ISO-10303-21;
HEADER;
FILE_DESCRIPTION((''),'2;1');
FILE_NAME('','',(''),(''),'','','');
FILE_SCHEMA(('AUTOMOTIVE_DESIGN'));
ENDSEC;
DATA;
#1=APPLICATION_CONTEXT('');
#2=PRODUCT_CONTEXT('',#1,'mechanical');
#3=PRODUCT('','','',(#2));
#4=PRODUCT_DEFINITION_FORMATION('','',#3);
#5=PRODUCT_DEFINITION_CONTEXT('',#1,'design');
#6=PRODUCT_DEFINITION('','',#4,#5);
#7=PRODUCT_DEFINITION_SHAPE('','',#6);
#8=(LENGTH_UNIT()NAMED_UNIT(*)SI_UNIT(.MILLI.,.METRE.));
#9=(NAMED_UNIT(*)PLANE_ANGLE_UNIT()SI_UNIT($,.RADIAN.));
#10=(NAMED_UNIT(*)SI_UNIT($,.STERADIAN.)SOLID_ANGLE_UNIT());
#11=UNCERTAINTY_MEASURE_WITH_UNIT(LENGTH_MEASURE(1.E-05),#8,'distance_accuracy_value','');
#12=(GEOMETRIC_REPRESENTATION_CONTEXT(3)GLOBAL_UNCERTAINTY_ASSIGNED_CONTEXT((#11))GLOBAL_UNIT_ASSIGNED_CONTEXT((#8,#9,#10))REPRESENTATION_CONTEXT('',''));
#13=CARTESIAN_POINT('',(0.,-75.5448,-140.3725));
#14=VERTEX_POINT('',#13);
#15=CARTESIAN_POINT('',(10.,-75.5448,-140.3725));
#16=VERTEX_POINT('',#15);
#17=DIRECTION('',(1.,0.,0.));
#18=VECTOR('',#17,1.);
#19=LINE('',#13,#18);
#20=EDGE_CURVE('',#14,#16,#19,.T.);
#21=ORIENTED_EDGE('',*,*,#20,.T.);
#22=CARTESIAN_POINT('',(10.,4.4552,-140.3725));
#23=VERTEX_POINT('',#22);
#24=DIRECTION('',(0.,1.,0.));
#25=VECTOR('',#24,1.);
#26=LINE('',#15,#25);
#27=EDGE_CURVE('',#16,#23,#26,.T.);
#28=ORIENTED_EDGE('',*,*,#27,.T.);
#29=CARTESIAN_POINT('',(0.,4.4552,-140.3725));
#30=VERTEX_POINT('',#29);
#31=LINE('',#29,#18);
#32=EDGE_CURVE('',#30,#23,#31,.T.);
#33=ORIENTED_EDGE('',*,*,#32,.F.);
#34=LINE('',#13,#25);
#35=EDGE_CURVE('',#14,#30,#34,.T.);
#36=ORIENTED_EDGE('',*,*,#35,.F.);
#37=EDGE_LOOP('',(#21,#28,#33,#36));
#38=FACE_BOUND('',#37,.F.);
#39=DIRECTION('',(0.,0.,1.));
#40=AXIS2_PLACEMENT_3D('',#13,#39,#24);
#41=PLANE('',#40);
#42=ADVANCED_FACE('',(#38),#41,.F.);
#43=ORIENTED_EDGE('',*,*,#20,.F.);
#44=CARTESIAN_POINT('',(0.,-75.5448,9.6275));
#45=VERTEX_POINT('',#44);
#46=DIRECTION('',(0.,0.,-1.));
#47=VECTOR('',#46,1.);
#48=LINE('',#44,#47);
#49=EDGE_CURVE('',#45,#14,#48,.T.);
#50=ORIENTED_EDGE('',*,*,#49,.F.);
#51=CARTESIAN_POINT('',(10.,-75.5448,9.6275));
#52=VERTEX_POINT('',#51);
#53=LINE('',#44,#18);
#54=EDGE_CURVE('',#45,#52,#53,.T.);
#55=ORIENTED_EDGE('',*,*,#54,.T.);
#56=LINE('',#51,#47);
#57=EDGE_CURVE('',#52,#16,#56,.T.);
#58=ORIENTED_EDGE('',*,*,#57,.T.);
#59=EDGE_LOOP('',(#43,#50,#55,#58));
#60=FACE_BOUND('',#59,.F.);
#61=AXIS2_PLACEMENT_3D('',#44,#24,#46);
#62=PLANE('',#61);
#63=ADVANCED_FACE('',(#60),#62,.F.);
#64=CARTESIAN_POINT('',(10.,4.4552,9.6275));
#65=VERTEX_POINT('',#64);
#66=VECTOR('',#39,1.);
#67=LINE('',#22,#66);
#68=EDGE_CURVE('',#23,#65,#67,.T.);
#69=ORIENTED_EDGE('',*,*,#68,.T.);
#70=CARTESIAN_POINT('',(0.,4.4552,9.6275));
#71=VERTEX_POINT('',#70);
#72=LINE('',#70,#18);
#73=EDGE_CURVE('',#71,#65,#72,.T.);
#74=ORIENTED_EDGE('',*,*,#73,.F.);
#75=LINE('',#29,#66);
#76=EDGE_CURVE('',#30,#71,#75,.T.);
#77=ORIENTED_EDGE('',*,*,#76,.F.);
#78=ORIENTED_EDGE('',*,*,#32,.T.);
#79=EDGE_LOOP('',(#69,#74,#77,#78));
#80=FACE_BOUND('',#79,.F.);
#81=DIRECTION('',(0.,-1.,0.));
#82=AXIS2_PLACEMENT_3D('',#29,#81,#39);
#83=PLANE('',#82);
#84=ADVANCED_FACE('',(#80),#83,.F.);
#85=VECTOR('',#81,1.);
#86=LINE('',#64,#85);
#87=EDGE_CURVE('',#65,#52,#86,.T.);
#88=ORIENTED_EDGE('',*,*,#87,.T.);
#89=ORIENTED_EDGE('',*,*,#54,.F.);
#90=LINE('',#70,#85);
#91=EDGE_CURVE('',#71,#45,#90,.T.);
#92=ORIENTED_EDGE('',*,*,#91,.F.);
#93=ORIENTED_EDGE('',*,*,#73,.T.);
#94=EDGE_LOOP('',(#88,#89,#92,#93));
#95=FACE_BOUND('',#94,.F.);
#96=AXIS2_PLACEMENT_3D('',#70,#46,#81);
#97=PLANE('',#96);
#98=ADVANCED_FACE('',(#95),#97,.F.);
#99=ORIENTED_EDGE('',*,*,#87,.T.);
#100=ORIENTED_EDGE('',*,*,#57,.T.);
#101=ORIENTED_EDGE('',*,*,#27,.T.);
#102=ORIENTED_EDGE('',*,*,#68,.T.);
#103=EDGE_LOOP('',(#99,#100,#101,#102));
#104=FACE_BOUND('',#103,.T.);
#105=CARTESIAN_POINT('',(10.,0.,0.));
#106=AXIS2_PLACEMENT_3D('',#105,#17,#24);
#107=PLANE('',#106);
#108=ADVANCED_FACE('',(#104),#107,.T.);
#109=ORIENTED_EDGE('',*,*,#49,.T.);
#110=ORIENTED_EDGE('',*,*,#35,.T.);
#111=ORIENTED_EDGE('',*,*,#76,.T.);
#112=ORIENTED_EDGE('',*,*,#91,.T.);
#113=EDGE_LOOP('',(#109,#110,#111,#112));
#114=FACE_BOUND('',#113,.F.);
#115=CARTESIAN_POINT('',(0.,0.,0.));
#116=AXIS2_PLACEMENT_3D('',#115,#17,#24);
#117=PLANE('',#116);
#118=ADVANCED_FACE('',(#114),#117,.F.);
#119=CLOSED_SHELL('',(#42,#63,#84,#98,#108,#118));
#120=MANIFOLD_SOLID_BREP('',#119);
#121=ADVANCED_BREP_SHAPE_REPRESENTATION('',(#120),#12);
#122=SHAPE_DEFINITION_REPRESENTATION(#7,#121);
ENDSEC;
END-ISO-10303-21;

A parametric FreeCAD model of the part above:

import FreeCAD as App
import Part
import Sketcher

doc = App.newDocument("Part")
body = doc.addObject("PartDesign::Body", "Body")

# Sketch on YZ plane
sketch1 = body.newObject("Sketcher::SketchObject", "Sketch")
sketch1.AttachmentSupport = (doc.getObject("YZ_Plane"), [""])
sketch1.MapMode = "FlatFace"
sketch1.addGeometry(Part.LineSegment(App.Vector(4, -140, 0), App.Vector(4, 10, 0)), False)
sketch1.addGeometry(Part.LineSegment(App.Vector(4, 10, 0), App.Vector(-76, 10, 0)), False)
sketch1.addGeometry(Part.LineSegment(App.Vector(-76, 10, 0), App.Vector(-76, -140, 0)), False)
sketch1.addGeometry(Part.LineSegment(App.Vector(-76, -140, 0), App.Vector(4, -140, 0)), False)
sketch1.addConstraint(Sketcher.Constraint("Coincident", 0, 2, 1, 1))
sketch1.addConstraint(Sketcher.Constraint("Coincident", 1, 2, 2, 1))
sketch1.addConstraint(Sketcher.Constraint("Coincident", 2, 2, 3, 1))
sketch1.addConstraint(Sketcher.Constraint("Coincident", 3, 2, 0, 1))
sketch1.addConstraint(Sketcher.Constraint("Vertical", 0))
sketch1.addConstraint(Sketcher.Constraint("Horizontal", 1))
sketch1.addConstraint(Sketcher.Constraint("Vertical", 2))
sketch1.addConstraint(Sketcher.Constraint("Horizontal", 3))
sketch1.addConstraint(Sketcher.Constraint("DistanceX", 1, 2, 1, 1, 80.0))
sketch1.addConstraint(Sketcher.Constraint("DistanceY", 0, 1, 0, 2, 150.0))
sketch1.addConstraint(Sketcher.Constraint("DistanceX", -1, 1, 0, 2, 4.4552))
sketch1.addConstraint(Sketcher.Constraint("DistanceY", -1, 1, 0, 2, 9.6275))
pad1 = body.newObject("PartDesign::Pad", "Pad")
pad1.Profile = sketch1
pad1.Length = 10

doc.recompute()
